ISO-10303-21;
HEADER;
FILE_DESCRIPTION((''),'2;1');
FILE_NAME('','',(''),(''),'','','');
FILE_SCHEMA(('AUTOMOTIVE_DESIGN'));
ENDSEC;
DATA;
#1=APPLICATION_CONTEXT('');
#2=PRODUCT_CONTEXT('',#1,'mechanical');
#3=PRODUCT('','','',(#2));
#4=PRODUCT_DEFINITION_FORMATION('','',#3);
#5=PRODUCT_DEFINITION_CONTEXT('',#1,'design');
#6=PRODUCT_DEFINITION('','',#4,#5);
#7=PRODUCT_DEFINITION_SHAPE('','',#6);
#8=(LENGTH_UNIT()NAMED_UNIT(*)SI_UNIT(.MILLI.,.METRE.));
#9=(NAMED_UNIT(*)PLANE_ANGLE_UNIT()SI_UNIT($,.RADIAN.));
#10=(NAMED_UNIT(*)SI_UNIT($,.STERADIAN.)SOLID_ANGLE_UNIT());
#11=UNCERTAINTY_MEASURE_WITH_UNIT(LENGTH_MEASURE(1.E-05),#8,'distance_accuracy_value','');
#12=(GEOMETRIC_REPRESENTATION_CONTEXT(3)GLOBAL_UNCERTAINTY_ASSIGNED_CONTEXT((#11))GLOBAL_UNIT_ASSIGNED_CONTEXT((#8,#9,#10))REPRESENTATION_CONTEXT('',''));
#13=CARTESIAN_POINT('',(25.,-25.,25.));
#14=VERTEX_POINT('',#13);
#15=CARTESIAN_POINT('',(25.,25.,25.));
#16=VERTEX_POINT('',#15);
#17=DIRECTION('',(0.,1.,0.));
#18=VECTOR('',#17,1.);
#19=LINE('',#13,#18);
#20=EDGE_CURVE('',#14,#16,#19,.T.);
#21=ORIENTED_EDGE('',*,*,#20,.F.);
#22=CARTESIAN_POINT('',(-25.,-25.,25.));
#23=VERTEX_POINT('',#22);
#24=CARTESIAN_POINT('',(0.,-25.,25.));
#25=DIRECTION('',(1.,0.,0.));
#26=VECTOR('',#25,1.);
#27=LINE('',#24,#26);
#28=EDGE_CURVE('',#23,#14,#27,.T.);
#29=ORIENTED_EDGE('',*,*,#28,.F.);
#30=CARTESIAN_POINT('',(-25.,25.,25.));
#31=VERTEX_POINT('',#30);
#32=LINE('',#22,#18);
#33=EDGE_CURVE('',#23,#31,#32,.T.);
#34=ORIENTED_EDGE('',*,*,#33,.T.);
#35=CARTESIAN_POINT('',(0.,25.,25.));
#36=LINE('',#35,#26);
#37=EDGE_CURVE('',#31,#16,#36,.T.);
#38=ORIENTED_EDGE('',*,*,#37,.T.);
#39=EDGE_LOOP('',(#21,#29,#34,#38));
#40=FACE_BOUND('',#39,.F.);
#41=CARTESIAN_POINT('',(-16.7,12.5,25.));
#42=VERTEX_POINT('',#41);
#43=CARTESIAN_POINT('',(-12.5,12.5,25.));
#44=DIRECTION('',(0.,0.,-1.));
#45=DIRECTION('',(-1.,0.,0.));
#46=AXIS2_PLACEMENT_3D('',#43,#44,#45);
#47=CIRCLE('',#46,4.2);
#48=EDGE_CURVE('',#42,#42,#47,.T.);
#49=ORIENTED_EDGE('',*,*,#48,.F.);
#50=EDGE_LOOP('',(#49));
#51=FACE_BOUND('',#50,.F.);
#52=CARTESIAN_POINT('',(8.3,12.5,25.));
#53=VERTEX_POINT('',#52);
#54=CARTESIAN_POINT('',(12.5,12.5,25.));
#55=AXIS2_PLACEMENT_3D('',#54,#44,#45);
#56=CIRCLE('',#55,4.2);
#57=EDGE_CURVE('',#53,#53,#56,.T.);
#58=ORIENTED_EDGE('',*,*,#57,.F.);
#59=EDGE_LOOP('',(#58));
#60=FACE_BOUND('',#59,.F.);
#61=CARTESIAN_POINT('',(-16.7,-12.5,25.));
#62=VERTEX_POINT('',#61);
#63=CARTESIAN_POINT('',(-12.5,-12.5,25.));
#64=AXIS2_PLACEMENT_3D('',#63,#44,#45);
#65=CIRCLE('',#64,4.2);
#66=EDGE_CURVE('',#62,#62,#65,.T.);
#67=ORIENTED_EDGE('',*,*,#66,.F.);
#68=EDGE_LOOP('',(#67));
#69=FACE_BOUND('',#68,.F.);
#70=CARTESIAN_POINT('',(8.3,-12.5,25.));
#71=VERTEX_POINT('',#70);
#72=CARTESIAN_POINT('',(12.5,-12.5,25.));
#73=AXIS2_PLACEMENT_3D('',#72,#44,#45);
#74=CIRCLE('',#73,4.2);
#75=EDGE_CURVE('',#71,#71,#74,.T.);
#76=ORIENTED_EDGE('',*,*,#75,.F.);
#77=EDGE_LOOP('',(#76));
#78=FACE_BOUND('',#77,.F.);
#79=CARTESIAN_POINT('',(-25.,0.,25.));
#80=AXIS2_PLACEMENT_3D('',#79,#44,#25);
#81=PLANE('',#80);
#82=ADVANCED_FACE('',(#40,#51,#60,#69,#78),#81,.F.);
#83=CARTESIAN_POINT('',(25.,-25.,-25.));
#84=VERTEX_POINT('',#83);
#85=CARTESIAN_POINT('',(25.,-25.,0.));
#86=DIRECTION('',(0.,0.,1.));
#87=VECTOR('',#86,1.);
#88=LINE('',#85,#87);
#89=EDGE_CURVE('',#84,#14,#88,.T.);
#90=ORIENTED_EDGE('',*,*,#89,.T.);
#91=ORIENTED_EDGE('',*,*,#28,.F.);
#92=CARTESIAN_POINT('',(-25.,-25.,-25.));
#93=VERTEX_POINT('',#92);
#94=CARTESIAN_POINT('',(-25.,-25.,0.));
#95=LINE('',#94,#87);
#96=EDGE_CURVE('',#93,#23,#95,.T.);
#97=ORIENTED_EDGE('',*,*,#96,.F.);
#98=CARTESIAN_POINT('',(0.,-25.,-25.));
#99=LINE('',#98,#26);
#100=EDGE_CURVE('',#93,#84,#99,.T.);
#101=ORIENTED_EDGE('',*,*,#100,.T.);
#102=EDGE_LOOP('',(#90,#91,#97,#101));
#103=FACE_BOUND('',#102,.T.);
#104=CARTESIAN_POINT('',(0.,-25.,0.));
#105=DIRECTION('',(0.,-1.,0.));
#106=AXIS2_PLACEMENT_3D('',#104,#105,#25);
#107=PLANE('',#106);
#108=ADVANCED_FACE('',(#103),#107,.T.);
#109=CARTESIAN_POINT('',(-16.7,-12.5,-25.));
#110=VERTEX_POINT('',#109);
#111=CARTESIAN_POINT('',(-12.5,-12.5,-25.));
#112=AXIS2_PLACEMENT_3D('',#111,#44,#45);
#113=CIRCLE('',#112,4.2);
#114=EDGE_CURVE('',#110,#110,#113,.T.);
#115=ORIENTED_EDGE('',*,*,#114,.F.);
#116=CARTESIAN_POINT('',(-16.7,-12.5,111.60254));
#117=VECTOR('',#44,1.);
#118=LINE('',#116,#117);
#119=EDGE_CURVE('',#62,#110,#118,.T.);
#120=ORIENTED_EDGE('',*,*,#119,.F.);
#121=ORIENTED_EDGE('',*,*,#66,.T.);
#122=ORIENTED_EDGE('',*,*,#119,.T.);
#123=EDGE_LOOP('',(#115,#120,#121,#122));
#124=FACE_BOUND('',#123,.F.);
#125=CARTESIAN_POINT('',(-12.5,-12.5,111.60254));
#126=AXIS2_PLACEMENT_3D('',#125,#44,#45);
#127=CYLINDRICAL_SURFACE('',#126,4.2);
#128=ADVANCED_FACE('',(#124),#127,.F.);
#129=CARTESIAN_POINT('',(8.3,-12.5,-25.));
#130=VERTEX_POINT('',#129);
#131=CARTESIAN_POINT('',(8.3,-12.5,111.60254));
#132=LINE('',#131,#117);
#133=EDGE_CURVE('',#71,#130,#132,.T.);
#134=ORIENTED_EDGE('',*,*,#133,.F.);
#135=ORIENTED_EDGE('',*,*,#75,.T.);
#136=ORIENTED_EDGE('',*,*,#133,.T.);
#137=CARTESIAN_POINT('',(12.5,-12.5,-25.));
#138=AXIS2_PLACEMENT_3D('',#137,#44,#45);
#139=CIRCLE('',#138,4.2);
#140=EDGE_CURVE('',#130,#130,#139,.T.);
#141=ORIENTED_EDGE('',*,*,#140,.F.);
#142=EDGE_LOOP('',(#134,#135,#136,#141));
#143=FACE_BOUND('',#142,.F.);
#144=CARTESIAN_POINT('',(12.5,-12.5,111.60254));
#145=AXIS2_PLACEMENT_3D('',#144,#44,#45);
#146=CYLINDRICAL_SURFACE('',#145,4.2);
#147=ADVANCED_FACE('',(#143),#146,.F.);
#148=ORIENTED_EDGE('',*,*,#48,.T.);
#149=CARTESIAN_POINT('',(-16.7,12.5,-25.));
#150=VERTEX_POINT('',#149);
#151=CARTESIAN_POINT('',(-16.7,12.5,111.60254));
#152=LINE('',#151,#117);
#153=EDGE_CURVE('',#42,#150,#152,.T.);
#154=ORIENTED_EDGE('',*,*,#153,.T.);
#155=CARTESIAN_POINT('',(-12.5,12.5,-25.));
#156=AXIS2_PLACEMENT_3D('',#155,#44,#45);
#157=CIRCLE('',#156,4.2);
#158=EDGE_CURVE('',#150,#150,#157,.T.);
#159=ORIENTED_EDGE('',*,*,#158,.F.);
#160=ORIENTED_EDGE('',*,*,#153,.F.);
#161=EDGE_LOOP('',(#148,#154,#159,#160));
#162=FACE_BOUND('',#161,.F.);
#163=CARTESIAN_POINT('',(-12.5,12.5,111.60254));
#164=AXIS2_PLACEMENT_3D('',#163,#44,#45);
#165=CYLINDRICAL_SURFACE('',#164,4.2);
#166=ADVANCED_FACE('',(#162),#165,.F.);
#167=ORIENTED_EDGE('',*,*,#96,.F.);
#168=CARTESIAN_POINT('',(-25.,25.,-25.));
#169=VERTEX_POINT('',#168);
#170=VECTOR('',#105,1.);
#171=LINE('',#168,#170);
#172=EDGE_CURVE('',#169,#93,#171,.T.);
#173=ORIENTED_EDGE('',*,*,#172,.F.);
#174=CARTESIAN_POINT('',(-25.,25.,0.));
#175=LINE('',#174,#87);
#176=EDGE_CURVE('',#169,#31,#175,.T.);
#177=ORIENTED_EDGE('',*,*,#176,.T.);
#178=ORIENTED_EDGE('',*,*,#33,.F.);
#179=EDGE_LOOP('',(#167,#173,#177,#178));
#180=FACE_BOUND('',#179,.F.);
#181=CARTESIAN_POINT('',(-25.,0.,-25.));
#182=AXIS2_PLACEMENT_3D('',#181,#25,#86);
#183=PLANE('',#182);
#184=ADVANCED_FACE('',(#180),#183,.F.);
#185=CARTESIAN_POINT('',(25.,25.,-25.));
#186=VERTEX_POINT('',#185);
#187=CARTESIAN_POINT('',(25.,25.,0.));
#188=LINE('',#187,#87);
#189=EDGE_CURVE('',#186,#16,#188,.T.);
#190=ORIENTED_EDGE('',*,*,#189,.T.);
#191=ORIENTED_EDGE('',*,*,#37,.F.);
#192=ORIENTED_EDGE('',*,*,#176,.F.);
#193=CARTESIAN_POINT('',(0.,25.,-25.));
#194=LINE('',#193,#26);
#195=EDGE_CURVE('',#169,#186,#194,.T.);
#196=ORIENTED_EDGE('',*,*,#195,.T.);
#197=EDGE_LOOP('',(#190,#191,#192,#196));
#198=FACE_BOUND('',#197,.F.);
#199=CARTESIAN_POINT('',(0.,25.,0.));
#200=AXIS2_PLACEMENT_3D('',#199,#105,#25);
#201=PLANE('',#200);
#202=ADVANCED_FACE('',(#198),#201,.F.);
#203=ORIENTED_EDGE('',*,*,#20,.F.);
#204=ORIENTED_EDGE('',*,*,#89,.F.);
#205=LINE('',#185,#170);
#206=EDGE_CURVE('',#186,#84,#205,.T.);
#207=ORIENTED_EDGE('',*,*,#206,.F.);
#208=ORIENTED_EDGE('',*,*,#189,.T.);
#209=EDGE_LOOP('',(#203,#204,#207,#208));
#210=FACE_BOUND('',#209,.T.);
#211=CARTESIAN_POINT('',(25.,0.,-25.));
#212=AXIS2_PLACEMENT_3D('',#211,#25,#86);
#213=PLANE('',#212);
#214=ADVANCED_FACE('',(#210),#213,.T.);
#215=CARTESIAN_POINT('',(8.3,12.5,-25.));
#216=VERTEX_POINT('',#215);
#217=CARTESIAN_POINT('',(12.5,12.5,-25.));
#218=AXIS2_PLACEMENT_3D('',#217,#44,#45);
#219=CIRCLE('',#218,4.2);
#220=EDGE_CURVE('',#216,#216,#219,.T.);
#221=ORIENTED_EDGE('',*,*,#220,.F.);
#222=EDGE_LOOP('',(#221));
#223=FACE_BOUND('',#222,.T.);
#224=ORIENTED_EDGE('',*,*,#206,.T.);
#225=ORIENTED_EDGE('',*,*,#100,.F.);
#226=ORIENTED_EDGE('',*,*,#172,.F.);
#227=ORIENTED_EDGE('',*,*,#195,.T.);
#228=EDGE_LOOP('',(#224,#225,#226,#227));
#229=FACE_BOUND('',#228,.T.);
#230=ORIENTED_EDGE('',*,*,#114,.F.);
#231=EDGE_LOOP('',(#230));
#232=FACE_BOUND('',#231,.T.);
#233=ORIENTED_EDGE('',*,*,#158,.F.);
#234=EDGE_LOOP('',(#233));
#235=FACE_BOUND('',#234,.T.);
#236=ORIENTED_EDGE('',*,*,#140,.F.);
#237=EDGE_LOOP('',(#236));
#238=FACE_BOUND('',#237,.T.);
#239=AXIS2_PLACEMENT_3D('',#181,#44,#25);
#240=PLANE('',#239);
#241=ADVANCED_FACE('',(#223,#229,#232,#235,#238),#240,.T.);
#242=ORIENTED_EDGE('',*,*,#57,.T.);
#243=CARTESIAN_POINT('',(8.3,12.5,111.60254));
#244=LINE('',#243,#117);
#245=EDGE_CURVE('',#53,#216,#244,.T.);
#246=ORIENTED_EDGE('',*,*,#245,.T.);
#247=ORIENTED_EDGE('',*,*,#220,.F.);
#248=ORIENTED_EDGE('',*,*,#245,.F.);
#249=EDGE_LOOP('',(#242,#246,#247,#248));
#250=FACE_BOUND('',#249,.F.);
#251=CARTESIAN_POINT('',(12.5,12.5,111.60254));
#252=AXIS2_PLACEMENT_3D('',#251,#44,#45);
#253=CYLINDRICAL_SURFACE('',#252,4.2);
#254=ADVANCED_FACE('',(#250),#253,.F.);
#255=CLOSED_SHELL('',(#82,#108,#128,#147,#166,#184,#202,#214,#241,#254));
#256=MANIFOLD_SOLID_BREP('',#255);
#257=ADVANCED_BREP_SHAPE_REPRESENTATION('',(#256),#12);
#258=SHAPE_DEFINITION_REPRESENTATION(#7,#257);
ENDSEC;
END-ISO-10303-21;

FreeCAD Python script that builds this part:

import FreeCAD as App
import Part
import Sketcher


def add_polygon(sketch, points):
    """Adds a closed chain of lines whose ends are joined by coincident constraints."""
    first, n = sketch.GeometryCount, len(points)
    for a, b in zip(points, points[1:] + points[:1]):
        sketch.addGeometry(Part.LineSegment(App.Vector(*a, 0), App.Vector(*b, 0)), False)
    for i in range(n):
        sketch.addConstraint(Sketcher.Constraint("Coincident", first + i, 2, first + (i + 1) % n, 1))

doc = App.newDocument("Part")
body = doc.addObject("PartDesign::Body", "Body")

# Sketch on XZ plane
sketch1 = body.newObject("Sketcher::SketchObject", "Sketch")
sketch1.AttachmentSupport = (doc.getObject("XZ_Plane"), [""])
sketch1.MapMode = "FlatFace"
add_polygon(sketch1, [(-25, 25), (-25, -25), (25, -25), (25, 25)])  # lines 0-3
sketch1.addConstraint(Sketcher.Constraint("Vertical", 0))
sketch1.addConstraint(Sketcher.Constraint("Horizontal", 1))
sketch1.addConstraint(Sketcher.Constraint("Vertical", 2))
sketch1.addConstraint(Sketcher.Constraint("Horizontal", 3))
sketch1.addConstraint(Sketcher.Constraint("Symmetric", 0, 2, 2, 2, -1, 1))
sketch1.addConstraint(Sketcher.Constraint("Equal", 3, 0))
sketch1.addConstraint(Sketcher.Constraint("DistanceX", 1, 1, 1, 2, 50.0))
pad1 = body.newObject("PartDesign::Pad", "Pad")
pad1.Profile = sketch1
pad1.Length = 50
pad1.Midplane = True

# Sketch on XY plane
sketch2 = body.newObject("Sketcher::SketchObject", "Sketch001")
sketch2.AttachmentSupport = (doc.getObject("XY_Plane"), [""])
sketch2.MapMode = "FlatFace"
sketch2.AttachmentOffset = App.Placement(App.Vector(0, 0, 25), App.Rotation())
sketch2.addGeometry(Part.Circle(App.Vector(-12.5, 12.5, 0), App.Vector(0, 0, 1), 4.2), False)
sketch2.addGeometry(Part.Circle(App.Vector(12.5, 12.5, 0), App.Vector(0, 0, 1), 4.2), False)
sketch2.addGeometry(Part.Circle(App.Vector(12.5, -12.5, 0), App.Vector(0, 0, 1), 4.2), False)
sketch2.addGeometry(Part.Circle(App.Vector(-12.5, -12.5, 0), App.Vector(0, 0, 1), 4.2), False)
sketch2.addConstraint(Sketcher.Constraint("Equal", 0, 1))
sketch2.addConstraint(Sketcher.Constraint("Equal", 1, 2))
sketch2.addConstraint(Sketcher.Constraint("Equal", 2, 3))
sketch2.addConstraint(Sketcher.Constraint("Symmetric", 0, 3, 2, 3, -1, 1))
sketch2.addConstraint(Sketcher.Constraint("Symmetric", 1, 3, 3, 3, -1, 1))
sketch2.addConstraint(Sketcher.Constraint("Symmetric", 0, 3, 1, 3, -2))
sketch2.addConstraint(Sketcher.Constraint("Diameter", 0, 8.4))
sketch2.addConstraint(Sketcher.Constraint("DistanceX", 0, 3, 1, 3, 25.0))
sketch2.addConstraint(Sketcher.Constraint("DistanceY", 2, 3, 1, 3, 25.0))
doc.recompute()
hole = body.newObject("PartDesign::Hole", "Hole")
hole.Profile = sketch2
hole.ThreadType = "None"
hole.Diameter = 8.4
hole.DepthType = "ThroughAll"

doc.recompute()
